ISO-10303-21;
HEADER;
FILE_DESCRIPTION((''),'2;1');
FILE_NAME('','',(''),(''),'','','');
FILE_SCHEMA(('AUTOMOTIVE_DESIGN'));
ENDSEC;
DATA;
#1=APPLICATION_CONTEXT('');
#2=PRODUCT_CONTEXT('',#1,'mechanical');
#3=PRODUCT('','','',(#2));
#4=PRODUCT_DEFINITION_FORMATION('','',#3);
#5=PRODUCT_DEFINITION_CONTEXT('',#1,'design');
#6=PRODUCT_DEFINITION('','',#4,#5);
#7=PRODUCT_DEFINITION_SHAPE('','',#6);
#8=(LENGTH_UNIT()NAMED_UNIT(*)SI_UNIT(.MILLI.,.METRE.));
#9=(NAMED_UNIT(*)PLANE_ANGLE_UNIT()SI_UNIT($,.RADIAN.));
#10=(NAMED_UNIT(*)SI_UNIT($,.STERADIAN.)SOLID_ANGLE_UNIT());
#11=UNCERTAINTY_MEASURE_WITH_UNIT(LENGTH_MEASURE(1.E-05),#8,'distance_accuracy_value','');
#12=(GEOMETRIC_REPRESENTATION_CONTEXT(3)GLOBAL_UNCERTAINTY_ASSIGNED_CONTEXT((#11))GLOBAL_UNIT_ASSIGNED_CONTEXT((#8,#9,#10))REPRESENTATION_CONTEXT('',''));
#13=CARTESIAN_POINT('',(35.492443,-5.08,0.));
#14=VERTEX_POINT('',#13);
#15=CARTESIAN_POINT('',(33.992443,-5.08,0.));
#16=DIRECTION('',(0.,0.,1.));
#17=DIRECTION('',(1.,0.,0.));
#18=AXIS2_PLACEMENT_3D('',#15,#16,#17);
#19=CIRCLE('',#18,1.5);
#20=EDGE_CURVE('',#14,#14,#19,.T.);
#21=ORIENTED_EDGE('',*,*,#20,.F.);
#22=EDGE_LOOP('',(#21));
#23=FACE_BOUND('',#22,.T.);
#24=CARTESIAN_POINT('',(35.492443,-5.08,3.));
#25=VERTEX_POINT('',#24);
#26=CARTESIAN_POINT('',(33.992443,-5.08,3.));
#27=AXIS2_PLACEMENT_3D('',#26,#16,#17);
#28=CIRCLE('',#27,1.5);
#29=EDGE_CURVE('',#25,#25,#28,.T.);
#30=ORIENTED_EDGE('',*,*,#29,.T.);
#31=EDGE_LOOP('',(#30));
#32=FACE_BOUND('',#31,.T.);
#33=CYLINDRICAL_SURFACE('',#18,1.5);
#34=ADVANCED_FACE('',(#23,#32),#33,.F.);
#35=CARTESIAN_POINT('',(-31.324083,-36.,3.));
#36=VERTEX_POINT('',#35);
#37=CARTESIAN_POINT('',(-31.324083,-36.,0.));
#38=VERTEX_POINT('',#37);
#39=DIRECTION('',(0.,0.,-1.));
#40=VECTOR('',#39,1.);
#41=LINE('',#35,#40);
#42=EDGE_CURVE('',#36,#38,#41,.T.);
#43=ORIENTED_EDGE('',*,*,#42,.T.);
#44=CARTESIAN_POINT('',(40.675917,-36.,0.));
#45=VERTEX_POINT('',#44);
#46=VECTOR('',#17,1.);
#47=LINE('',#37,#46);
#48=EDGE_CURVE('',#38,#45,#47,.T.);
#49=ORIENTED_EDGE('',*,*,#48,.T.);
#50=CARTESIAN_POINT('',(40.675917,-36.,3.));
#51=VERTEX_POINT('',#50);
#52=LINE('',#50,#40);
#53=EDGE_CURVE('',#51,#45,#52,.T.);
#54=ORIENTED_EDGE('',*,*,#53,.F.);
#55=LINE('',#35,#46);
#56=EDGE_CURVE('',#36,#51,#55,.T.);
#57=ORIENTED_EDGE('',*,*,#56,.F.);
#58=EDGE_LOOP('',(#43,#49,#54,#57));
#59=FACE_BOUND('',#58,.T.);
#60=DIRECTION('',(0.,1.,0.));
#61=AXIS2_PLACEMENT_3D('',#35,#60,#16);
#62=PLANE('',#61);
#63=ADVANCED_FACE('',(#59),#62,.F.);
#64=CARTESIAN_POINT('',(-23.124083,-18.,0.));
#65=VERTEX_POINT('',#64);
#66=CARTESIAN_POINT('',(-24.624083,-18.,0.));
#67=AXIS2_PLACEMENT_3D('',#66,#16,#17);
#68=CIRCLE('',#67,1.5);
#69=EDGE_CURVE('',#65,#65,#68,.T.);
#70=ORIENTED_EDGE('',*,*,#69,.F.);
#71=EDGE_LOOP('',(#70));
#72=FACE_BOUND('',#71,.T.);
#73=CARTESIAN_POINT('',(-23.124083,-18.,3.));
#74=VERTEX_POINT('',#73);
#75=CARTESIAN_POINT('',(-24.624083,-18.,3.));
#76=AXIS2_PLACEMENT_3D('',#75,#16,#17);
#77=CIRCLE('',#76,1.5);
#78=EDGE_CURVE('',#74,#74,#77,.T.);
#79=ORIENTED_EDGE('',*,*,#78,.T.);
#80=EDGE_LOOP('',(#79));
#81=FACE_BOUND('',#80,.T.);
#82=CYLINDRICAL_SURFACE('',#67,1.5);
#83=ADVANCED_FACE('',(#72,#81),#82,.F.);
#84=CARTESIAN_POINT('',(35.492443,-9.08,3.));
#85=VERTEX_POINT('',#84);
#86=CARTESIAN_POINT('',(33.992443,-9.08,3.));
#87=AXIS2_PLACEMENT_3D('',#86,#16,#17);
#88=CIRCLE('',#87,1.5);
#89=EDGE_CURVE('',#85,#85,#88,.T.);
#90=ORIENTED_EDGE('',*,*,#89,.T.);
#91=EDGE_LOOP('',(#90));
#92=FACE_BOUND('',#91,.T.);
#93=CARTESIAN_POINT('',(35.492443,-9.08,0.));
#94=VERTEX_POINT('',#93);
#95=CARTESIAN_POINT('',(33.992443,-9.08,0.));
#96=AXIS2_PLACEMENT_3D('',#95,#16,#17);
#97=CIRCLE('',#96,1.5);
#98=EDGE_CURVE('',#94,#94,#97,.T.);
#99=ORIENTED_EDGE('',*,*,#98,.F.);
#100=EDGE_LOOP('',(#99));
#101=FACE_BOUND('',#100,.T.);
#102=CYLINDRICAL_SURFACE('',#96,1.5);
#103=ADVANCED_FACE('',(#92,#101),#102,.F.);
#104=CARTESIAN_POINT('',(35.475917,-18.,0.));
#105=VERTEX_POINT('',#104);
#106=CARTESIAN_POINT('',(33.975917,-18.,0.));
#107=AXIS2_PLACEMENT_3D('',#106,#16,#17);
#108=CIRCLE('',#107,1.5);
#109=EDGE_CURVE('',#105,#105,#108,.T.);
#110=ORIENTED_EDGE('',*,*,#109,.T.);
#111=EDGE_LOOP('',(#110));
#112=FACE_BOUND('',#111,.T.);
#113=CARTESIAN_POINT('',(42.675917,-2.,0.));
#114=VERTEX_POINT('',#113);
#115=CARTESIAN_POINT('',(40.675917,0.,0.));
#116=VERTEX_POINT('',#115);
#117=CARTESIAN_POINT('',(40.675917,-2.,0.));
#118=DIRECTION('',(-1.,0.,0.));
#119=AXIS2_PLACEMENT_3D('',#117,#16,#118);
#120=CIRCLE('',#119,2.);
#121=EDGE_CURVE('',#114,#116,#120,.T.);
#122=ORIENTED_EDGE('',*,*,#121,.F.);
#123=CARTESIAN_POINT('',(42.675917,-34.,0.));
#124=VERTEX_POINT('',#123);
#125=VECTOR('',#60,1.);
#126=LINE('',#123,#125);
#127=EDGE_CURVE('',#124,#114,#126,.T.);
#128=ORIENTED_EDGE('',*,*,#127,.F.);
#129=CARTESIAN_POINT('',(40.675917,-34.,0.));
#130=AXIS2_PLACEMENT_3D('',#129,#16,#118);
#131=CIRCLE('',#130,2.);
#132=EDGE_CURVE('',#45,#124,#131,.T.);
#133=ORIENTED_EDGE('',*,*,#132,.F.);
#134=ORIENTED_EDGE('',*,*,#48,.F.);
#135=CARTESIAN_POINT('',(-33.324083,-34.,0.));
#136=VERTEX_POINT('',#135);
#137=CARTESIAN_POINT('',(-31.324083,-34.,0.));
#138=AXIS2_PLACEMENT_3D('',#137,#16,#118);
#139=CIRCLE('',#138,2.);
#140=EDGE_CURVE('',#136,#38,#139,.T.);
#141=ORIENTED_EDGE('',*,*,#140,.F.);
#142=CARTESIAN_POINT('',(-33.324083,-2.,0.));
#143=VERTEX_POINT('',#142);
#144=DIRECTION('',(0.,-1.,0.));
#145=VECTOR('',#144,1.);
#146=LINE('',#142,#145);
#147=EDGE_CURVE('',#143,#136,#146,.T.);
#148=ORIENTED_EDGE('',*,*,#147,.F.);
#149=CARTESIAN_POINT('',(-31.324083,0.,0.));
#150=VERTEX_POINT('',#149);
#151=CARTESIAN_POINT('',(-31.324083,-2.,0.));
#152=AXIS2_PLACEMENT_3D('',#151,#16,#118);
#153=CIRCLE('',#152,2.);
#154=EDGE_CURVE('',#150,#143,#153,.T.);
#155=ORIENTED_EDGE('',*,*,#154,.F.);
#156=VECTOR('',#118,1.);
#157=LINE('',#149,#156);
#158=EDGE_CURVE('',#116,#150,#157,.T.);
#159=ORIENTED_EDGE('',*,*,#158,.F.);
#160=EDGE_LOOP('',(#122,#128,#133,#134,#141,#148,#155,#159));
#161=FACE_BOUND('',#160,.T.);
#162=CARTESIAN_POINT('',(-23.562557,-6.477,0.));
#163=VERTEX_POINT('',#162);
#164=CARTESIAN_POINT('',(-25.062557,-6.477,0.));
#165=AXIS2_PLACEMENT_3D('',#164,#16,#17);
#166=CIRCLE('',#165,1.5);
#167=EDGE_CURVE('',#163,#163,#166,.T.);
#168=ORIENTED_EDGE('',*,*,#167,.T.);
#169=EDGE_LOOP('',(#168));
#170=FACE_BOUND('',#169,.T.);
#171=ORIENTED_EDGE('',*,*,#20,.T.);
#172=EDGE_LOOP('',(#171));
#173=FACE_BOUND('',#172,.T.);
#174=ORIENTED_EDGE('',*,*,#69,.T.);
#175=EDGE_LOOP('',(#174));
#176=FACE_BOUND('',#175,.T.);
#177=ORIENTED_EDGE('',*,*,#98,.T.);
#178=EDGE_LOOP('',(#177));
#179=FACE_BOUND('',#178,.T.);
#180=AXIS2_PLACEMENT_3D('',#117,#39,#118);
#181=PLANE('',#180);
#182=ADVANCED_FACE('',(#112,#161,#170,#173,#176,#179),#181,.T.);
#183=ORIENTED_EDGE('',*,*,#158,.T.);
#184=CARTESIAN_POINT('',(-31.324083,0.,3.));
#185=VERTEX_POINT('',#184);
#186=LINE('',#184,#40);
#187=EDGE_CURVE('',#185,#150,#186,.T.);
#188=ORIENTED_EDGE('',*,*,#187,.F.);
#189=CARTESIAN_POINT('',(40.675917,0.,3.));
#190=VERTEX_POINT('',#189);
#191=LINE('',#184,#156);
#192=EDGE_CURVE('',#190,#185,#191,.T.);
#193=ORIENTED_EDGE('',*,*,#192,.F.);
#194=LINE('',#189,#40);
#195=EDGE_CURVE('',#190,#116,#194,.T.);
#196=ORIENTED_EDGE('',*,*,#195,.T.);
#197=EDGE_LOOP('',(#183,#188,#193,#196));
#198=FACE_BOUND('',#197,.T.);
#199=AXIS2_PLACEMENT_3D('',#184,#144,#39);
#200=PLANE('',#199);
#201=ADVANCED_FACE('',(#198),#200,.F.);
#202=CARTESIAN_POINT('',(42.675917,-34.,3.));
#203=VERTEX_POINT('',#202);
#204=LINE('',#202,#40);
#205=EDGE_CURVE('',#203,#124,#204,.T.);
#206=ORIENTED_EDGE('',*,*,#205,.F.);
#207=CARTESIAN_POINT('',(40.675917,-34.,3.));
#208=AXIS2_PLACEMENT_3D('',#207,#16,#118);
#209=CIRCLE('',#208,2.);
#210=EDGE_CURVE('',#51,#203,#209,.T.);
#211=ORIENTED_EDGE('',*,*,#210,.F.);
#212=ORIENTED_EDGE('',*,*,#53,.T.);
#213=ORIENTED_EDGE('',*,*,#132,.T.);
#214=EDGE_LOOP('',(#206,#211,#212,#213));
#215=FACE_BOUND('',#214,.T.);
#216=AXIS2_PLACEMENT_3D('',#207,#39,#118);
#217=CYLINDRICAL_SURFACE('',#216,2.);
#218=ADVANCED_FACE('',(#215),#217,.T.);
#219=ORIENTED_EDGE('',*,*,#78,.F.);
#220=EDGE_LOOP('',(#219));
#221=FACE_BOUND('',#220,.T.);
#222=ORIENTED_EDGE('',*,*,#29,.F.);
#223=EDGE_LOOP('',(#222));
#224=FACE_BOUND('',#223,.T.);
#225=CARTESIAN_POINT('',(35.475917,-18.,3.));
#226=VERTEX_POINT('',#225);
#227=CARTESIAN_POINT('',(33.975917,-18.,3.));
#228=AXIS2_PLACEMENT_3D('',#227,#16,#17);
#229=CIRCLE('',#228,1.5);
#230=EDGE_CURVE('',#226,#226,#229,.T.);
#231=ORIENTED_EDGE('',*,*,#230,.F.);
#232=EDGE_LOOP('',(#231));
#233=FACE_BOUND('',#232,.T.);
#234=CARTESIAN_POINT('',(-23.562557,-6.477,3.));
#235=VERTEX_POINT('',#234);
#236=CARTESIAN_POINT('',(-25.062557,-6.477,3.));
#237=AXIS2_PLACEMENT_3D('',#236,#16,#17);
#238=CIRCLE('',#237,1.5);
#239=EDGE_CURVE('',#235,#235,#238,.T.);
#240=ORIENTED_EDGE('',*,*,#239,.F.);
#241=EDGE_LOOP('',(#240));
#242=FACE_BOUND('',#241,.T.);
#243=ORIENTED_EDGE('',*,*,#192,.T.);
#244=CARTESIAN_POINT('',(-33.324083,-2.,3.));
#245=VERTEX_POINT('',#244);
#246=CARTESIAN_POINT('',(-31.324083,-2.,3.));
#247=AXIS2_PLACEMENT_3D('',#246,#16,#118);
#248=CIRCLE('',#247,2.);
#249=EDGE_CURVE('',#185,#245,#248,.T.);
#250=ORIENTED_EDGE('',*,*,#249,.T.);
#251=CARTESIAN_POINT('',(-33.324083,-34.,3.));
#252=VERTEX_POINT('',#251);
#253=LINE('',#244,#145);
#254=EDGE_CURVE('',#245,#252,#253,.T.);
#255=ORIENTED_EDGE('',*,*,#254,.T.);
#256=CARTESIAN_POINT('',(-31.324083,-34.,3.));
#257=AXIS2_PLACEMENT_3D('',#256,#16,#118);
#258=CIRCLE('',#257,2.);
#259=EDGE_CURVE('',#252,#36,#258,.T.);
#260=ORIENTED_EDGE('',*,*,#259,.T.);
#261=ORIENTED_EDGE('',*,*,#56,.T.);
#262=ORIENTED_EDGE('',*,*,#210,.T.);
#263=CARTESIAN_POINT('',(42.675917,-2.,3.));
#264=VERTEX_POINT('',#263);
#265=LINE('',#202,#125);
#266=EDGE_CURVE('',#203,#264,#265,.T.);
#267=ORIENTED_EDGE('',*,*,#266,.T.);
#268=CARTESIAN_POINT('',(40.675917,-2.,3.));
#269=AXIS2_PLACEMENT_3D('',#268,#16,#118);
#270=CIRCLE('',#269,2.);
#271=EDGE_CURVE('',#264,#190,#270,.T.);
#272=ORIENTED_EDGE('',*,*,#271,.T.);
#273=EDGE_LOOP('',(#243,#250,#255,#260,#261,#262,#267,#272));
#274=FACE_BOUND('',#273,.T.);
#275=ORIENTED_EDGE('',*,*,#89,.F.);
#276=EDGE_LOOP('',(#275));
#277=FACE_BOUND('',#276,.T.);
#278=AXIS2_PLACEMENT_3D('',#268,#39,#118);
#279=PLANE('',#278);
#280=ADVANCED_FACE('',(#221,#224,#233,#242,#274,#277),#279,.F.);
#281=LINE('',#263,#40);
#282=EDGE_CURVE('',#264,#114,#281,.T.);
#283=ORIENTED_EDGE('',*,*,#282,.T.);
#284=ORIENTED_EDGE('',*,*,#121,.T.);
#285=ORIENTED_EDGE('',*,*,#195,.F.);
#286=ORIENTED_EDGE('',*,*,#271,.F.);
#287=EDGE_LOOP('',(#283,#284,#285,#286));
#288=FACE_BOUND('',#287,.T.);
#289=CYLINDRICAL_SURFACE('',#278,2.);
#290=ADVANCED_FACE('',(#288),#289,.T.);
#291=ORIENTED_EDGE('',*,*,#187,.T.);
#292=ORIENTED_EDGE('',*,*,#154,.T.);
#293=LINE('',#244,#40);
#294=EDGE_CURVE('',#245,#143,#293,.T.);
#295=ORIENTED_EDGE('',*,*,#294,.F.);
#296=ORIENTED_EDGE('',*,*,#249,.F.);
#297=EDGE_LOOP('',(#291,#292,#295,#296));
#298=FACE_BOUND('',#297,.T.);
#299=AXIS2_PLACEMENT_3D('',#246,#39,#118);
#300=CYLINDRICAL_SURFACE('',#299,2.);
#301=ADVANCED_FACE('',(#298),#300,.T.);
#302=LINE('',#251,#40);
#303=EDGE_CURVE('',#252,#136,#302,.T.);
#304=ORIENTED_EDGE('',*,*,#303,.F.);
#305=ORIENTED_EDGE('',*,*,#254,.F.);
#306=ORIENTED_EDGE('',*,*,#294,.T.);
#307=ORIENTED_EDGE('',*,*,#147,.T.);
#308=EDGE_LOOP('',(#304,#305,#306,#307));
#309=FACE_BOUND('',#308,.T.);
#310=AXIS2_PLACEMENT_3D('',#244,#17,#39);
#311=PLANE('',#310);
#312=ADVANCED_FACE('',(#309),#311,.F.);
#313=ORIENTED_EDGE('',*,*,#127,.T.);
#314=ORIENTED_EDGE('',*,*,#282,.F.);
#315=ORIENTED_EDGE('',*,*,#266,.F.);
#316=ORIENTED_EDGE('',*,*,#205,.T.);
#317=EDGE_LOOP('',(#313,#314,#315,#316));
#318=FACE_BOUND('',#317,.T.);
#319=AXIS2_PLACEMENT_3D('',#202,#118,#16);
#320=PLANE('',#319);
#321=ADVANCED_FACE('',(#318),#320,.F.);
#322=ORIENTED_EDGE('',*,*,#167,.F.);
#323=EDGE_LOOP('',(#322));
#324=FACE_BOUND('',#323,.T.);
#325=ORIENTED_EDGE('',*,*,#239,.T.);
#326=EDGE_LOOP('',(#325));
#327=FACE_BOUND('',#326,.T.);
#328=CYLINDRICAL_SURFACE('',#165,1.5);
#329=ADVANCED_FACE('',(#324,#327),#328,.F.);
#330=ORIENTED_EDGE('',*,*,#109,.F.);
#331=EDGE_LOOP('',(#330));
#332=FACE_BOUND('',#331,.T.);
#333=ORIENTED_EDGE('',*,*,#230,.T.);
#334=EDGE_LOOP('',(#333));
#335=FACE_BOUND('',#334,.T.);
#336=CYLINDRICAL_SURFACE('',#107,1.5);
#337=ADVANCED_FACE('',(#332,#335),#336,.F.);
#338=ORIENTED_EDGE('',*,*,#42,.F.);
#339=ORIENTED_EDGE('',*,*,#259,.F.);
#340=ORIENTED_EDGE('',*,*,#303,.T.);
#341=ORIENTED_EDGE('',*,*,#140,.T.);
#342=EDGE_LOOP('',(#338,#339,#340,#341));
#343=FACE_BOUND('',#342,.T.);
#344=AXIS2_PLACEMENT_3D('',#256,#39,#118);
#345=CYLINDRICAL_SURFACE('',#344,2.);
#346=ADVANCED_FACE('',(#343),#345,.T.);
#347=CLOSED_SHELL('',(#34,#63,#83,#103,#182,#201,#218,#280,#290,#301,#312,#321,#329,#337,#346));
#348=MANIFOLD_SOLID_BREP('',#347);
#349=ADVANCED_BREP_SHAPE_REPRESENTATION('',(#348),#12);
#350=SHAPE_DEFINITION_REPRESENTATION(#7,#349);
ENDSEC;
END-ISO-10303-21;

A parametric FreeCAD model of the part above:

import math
import FreeCAD as App
import Part
import Sketcher

doc = App.newDocument("Part")
params = doc.addObject("Spreadsheet::Sheet", "Params")
for row, (alias, value) in enumerate([
    ("sketch1_radius", "2 mm"),
    ("sketch1_width", "72 mm"),
    ("sketch1_height", "32 mm"),
    ("pad1_length", "3 mm"),
    ("sketch2_diameter", "3 mm"),
    ("pocket1_length", "3 mm"),
], start=1):
    params.set(f"A{row}", alias)
    params.set(f"B{row}", "=" + value)
    params.setAlias(f"B{row}", alias)

body = doc.addObject("PartDesign::Body", "Body")

# Sketch on XY plane
sketch1 = doc.addObject("Sketcher::SketchObject", "Sketch")
body.addObject(sketch1)
sketch1.AttachmentSupport = (doc.XY_Plane, [""])
sketch1.MapMode = "FlatFace"
sketch1.addGeometry(Part.LineSegment(App.Vector(40.7, 0, 0), App.Vector(-31.3, 0, 0)), False)
sketch1.addGeometry(Part.ArcOfCircle(Part.Circle(App.Vector(-31.3, -2, 0), App.Vector(0, 0, 1), 2), math.radians(90), math.radians(180)), False)
sketch1.addGeometry(Part.LineSegment(App.Vector(-33.3, -2, 0), App.Vector(-33.3, -34, 0)), False)
sketch1.addGeometry(Part.ArcOfCircle(Part.Circle(App.Vector(-31.3, -34, 0), App.Vector(0, 0, 1), 2), math.radians(-180), math.radians(-90)), False)
sketch1.addGeometry(Part.LineSegment(App.Vector(-31.3, -36, 0), App.Vector(40.7, -36, 0)), False)
sketch1.addGeometry(Part.ArcOfCircle(Part.Circle(App.Vector(40.7, -34, 0), App.Vector(0, 0, 1), 2), math.radians(-90), math.radians(0)), False)
sketch1.addGeometry(Part.LineSegment(App.Vector(42.7, -34, 0), App.Vector(42.7, -2, 0)), False)
sketch1.addGeometry(Part.ArcOfCircle(Part.Circle(App.Vector(40.7, -2, 0), App.Vector(0, 0, 1), 2), math.radians(0), math.radians(90)), False)
sketch1.addConstraint(Sketcher.Constraint("Tangent", 0, 2, 1, 1))
sketch1.addConstraint(Sketcher.Constraint("Tangent", 1, 2, 2, 1))
sketch1.addConstraint(Sketcher.Constraint("Tangent", 2, 2, 3, 1))
sketch1.addConstraint(Sketcher.Constraint("Tangent", 3, 2, 4, 1))
sketch1.addConstraint(Sketcher.Constraint("Tangent", 4, 2, 5, 1))
sketch1.addConstraint(Sketcher.Constraint("Tangent", 5, 2, 6, 1))
sketch1.addConstraint(Sketcher.Constraint("Tangent", 6, 2, 7, 1))
sketch1.addConstraint(Sketcher.Constraint("Tangent", 7, 2, 0, 1))
sketch1.addConstraint(Sketcher.Constraint("Horizontal", 0))
sketch1.addConstraint(Sketcher.Constraint("Vertical", 2))
sketch1.addConstraint(Sketcher.Constraint("Horizontal", 4))
sketch1.addConstraint(Sketcher.Constraint("Vertical", 6))
sketch1.addConstraint(Sketcher.Constraint("Equal", 1, 3))
sketch1.addConstraint(Sketcher.Constraint("Equal", 3, 5))
sketch1.addConstraint(Sketcher.Constraint("Equal", 5, 7))
sketch1.addConstraint(Sketcher.Constraint("PointOnObject", 0, 2, -1))
sketch1.addConstraint(Sketcher.Constraint("Radius", 1, 2.0))
sketch1.addConstraint(Sketcher.Constraint("DistanceX", 0, 2, 0, 1, 72.0))
sketch1.addConstraint(Sketcher.Constraint("DistanceY", 2, 2, 2, 1, 32.0))
sketch1.addConstraint(Sketcher.Constraint("DistanceX", 1, 3, -1, 1, 31.324083))
sketch1.setExpression("Constraints[16]", "Params.sketch1_radius")
sketch1.setExpression("Constraints[17]", "Params.sketch1_width")
sketch1.setExpression("Constraints[18]", "Params.sketch1_height")
pad1 = doc.addObject("PartDesign::Pad", "Pad")
body.addObject(pad1)
pad1.Profile = sketch1
pad1.setExpression("Length", "Params.pad1_length")

# Sketch on XY plane
sketch2 = doc.addObject("Sketcher::SketchObject", "Sketch001")
body.addObject(sketch2)
sketch2.AttachmentSupport = (doc.XY_Plane, [""])
sketch2.MapMode = "FlatFace"
sketch2.AttachmentOffset = App.Placement(App.Vector(0, 0, 3), App.Rotation())
sketch2.addGeometry(Part.Circle(App.Vector(-24.6, -18, 0), App.Vector(0, 0, 1), 1.5), False)
sketch2.addGeometry(Part.Circle(App.Vector(34, -18, 0), App.Vector(0, 0, 1), 1.5), False)
sketch2.addGeometry(Part.Circle(App.Vector(-25.1, -6.5, 0), App.Vector(0, 0, 1), 1.5), False)
sketch2.addGeometry(Part.Circle(App.Vector(34, -5.1, 0), App.Vector(0, 0, 1), 1.5), False)
sketch2.addGeometry(Part.Circle(App.Vector(34, -9.1, 0), App.Vector(0, 0, 1), 1.5), False)
sketch2.addConstraint(Sketcher.Constraint("Equal", 0, 1))
sketch2.addConstraint(Sketcher.Constraint("Equal", 1, 2))
sketch2.addConstraint(Sketcher.Constraint("Equal", 2, 3))
sketch2.addConstraint(Sketcher.Constraint("Equal", 3, 4))
sketch2.addConstraint(Sketcher.Constraint("Horizontal", 0, 3, 1, 3))
sketch2.addConstraint(Sketcher.Constraint("Vertical", 3, 3, 4, 3))
sketch2.addConstraint(Sketcher.Constraint("Diameter", 0, 3.0))
sketch2.addConstraint(Sketcher.Constraint("DistanceY", 0, 3, -1, 1, 18.0))
sketch2.addConstraint(Sketcher.Constraint("DistanceY", 4, 3, 3, 3, 4.0))
sketch2.addConstraint(Sketcher.Constraint("DistanceX", 0, 3, 1, 3, 58.6))
sketch2.addConstraint(Sketcher.Constraint("DistanceY", 3, 3, -1, 1, 5.08))
sketch2.addConstraint(Sketcher.Constraint("DistanceY", 2, 3, -1, 1, 6.477))
sketch2.addConstraint(Sketcher.Constraint("DistanceX", 2, 3, 3, 3, 59.055))
sketch2.addConstraint(Sketcher.Constraint("DistanceX", 0, 3, -1, 1, 24.624083))
sketch2.addConstraint(Sketcher.Constraint("DistanceX", 2, 3, -1, 1, 25.062557))
sketch2.setExpression("Constraints[6]", "Params.sketch2_diameter")
pocket1 = doc.addObject("PartDesign::Pocket", "Pocket")
body.addObject(pocket1)
pocket1.Profile = sketch2
pocket1.setExpression("Length", "Params.pocket1_length")

doc.recompute()
